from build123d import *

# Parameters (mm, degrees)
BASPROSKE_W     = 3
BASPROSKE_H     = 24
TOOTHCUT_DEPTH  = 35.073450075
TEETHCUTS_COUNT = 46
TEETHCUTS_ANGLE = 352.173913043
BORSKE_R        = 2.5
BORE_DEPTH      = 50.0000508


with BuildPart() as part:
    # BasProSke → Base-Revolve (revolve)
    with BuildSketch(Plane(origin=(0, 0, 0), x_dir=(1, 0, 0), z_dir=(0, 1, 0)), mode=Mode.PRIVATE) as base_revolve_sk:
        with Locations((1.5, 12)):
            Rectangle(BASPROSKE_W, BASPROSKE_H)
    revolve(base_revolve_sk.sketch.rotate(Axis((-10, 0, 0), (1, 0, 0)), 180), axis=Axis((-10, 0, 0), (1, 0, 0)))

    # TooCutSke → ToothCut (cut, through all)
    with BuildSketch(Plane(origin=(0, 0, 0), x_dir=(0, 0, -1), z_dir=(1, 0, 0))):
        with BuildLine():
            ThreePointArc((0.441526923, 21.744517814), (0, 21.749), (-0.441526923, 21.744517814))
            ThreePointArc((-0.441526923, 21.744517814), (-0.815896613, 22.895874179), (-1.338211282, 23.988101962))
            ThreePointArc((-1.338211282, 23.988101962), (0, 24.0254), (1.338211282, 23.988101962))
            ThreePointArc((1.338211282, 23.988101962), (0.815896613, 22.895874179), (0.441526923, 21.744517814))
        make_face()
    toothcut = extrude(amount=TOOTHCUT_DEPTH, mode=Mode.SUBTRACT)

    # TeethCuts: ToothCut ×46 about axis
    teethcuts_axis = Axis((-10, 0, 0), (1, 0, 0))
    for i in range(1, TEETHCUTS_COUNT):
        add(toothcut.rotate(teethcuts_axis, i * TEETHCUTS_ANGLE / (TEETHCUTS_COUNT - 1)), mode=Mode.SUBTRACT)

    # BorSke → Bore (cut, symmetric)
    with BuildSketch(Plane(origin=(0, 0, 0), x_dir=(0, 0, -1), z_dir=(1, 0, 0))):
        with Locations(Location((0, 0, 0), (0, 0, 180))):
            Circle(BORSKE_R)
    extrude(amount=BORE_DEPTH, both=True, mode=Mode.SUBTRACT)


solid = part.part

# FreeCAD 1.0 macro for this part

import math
import FreeCAD as App
import Part
import Sketcher

V = App.Vector
Q = App.Units.Quantity

doc = App.newDocument("Part")
body = doc.addObject("PartDesign::Body", "Body")

# Sketch on XZ plane
sketch1 = body.newObject("Sketcher::SketchObject", "Sketch")
sketch1.AttachmentSupport = (doc.getObject("XZ_Plane"), [""])
sketch1.MapMode = "FlatFace"
sketch1.addGeometry([
    Part.LineSegment(V(0, -24, 0), V(0, 0, 0)),
    Part.LineSegment(V(0, 0, 0), V(3, 0, 0)),
    Part.LineSegment(V(3, 0, 0), V(3, -24, 0)),
    Part.LineSegment(V(3, -24, 0), V(0, -24, 0)),
], False)
sketch1.addConstraint([
    Sketcher.Constraint("Coincident", 0, 2, 1, 1),
    Sketcher.Constraint("Coincident", 1, 2, 2, 1),
    Sketcher.Constraint("Coincident", 2, 2, 3, 1),
    Sketcher.Constraint("Coincident", 3, 2, 0, 1),
    Sketcher.Constraint("Vertical", 0),
    Sketcher.Constraint("Horizontal", 1),
    Sketcher.Constraint("Vertical", 2),
    Sketcher.Constraint("Horizontal", 3),
    Sketcher.Constraint("Coincident", 0, 2, -1, 1),
    Sketcher.Constraint("DistanceX", 1, 1, 1, 2, Q("3 mm")),
    Sketcher.Constraint("DistanceY", 0, 1, 0, 2, Q("24 mm")),
])
revolution = body.newObject("PartDesign::Revolution", "Revolution")
revolution.Profile = sketch1
revolution.ReferenceAxis = (sketch1, ["H_Axis"])
revolution.Angle = 360

# Sketch on YZ plane
sketch2 = body.newObject("Sketcher::SketchObject", "Sketch001")
sketch2.AttachmentSupport = (doc.getObject("YZ_Plane"), [""])
sketch2.MapMode = "FlatFace"
sketch2.addGeometry([
    Part.ArcOfCircle(Part.Circle(V(0.000001, 0, 0), V(0, 0, 1), 21.748999), math.radians(-1.163243), math.radians(1.163243)),
    Part.ArcOfCircle(Part.Circle(V(19.48154, -9.358866, 0), V(0, 0, 1), 9.2), math.radians(60.66969), math.radians(75.760487)),
    Part.ArcOfCircle(Part.Circle(V(0, 0, 0), V(0, 0, 1), 24.0254), math.radians(-3.193019), math.radians(3.193019)),
    Part.ArcOfCircle(Part.Circle(V(19.48154, 9.358866, 0), V(0, 0, 1), 9.2), math.radians(-75.760487), math.radians(-60.66969)),
], False)
sketch2.addConstraint([
    Sketcher.Constraint("Coincident", 0, 1, 1, 2),
    Sketcher.Constraint("Coincident", 1, 1, 2, 1),
    Sketcher.Constraint("Coincident", 2, 2, 3, 2),
    Sketcher.Constraint("Coincident", 3, 1, 0, 2),
    Sketcher.Constraint("Coincident", 0, 3, -1, 1),
    Sketcher.Constraint("Coincident", 2, 3, -1, 1),
    Sketcher.Constraint("Equal", 1, 3),
    Sketcher.Constraint("Symmetric", 1, 3, 3, 3, -1),
    Sketcher.Constraint("Radius", 1, Q("9.2 mm")),
    Sketcher.Constraint("Radius", 0, Q("21.748999 mm")),
    Sketcher.Constraint("Radius", 2, Q("24.0254 mm")),
    Sketcher.Constraint("DistanceX", -1, 1, 1, 1, Q("23.988102 mm")),
    Sketcher.Constraint("DistanceX", -1, 1, 1, 3, Q("19.48154 mm")),
])
pocket1 = body.newObject("PartDesign::Pocket", "Pocket")
pocket1.Profile = sketch2
pocket1.Type = "ThroughAll"
pocket1.Reversed = True
doc.recompute()

polarpattern = body.newObject("PartDesign::PolarPattern", "PolarPattern")
polarpattern.Originals = [pocket1]
polarpattern.Axis = (doc.getObject("X_Axis"), [""])
polarpattern.Angle = 360
polarpattern.Occurrences = 46
body.Tip = polarpattern

# Sketch on YZ plane
sketch3 = body.newObject("Sketcher::SketchObject", "Sketch002")
sketch3.AttachmentSupport = (doc.getObject("YZ_Plane"), [""])
sketch3.MapMode = "FlatFace"
sketch3.addGeometry(Part.Circle(V(0, 0, 0), V(0, 0, 1), 2.5), False)
sketch3.addConstraint([
    Sketcher.Constraint("Coincident", 0, 3, -1, 1),
    Sketcher.Constraint("Diameter", 0, Q("5 mm")),
])
pocket2 = body.newObject("PartDesign::Pocket", "Pocket001")
pocket2.Profile = sketch3
pocket2.Length = 100.000102
pocket2.Midplane = True

doc.recompute()
